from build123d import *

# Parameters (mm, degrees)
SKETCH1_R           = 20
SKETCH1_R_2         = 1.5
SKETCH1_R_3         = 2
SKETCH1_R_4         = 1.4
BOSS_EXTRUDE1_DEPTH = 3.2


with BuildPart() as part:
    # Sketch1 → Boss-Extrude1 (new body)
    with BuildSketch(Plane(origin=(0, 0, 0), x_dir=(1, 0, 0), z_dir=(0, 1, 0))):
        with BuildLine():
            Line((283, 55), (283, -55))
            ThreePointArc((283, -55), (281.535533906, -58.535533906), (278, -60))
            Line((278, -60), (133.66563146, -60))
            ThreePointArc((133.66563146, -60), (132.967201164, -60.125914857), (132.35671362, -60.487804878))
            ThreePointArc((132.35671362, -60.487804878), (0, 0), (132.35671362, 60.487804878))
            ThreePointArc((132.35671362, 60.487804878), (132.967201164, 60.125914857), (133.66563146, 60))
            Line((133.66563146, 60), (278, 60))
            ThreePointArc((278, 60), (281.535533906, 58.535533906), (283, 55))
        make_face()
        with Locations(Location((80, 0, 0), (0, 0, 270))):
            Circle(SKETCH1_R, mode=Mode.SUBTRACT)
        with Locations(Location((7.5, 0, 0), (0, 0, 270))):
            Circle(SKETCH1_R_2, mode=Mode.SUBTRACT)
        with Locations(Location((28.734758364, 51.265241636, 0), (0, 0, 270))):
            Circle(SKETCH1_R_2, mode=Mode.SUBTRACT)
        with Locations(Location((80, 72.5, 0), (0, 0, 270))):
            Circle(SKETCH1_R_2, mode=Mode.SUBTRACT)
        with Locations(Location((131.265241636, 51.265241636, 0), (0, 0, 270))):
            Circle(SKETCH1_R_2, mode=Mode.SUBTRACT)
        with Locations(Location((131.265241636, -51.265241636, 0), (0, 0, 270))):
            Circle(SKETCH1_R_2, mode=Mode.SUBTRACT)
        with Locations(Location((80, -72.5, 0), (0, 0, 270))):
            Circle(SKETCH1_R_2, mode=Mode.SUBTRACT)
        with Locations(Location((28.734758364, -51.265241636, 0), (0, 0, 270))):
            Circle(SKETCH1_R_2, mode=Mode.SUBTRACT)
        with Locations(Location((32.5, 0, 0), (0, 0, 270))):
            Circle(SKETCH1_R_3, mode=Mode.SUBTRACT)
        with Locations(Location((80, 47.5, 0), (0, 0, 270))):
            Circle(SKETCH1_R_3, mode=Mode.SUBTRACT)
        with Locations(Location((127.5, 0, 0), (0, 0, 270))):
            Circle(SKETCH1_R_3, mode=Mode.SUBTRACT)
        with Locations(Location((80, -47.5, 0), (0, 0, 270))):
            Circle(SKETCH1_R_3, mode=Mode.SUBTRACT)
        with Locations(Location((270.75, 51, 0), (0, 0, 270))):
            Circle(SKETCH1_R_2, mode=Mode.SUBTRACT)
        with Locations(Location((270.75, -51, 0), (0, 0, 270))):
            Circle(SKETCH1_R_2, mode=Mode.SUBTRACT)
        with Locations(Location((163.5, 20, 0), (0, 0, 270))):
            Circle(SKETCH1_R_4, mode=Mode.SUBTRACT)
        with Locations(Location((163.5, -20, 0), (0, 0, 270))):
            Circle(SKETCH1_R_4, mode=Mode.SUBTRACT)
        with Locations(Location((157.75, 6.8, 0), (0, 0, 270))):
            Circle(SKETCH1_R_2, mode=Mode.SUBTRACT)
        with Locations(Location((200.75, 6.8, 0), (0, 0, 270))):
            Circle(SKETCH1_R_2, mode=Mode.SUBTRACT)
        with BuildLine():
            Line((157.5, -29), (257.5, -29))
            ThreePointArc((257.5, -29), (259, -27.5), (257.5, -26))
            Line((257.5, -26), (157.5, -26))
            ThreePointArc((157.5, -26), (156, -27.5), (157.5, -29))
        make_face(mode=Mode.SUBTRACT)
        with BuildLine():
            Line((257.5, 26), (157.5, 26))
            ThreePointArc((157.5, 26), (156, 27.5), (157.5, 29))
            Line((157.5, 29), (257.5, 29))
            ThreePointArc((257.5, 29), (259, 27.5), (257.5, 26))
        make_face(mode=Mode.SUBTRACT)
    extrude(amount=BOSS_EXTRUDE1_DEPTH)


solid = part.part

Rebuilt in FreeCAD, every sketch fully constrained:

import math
import FreeCAD as App
import Part
import Sketcher

V = App.Vector
Q = App.Units.Quantity

doc = App.newDocument("Part")
body = doc.addObject("PartDesign::Body", "Body")

# Sketch on XZ plane
sketch1 = body.newObject("Sketcher::SketchObject", "Sketch")
sketch1.AttachmentSupport = (doc.getObject("XZ_Plane"), [""])
sketch1.MapMode = "FlatFace"
sketch1.addGeometry([
    Part.LineSegment(V(283, 55, 0), V(283, -55, 0)),  # 0
    Part.ArcOfCircle(Part.Circle(V(278, -55, 0), V(0, 0, 1), 5), math.radians(-90), math.radians(0)),  # 1
    Part.LineSegment(V(278, -60, 0), V(133.7, -60, 0)),  # 2
    Part.ArcOfCircle(Part.Circle(V(133.7, -62, 0), V(0, 0, 1), 2), math.radians(90), math.radians(131)),  # 3
    Part.ArcOfCircle(Part.Circle(V(80, 0, 0), V(0, 0, 1), 80), math.radians(49), math.radians(311)),  # 4
    Part.ArcOfCircle(Part.Circle(V(133.7, 62, 0), V(0, 0, 1), 2), math.radians(-131), math.radians(-90)),  # 5
    Part.LineSegment(V(133.7, 60, 0), V(278, 60, 0)),  # 6
    Part.ArcOfCircle(Part.Circle(V(278, 55, 0), V(0, 0, 1), 5), math.radians(0), math.radians(90)),  # 7
    Part.Circle(V(270.8, 51, 0), V(0, 0, 1), 1.5),  # 8
    Part.ArcOfCircle(Part.Circle(V(157.5, 27.5, 0), V(0, 0, 1), 1.5), math.radians(90), math.radians(270)),  # 9
    Part.LineSegment(V(157.5, 26, 0), V(257.5, 26, 0)),  # 10
    Part.ArcOfCircle(Part.Circle(V(257.5, 27.5, 0), V(0, 0, 1), 1.5), math.radians(-90), math.radians(90)),  # 11
    Part.LineSegment(V(257.5, 29, 0), V(157.5, 29, 0)),  # 12
    Part.Circle(V(163.5, 20, 0), V(0, 0, 1), 1.4),  # 13
    Part.Circle(V(80, 72.5, 0), V(0, 0, 1), 1.5),  # 14
    Part.Circle(V(131.3, 51.3, 0), V(0, 0, 1), 1.5),  # 15
    Part.Circle(V(80, 47.5, 0), V(0, 0, 1), 2),  # 16
    Part.Circle(V(28.7, 51.3, 0), V(0, 0, 1), 1.5),  # 17
    Part.LineSegment(V(257.5, -26, 0), V(157.5, -26, 0)),  # 18
    Part.ArcOfCircle(Part.Circle(V(157.5, -27.5, 0), V(0, 0, 1), 1.5), math.radians(90), math.radians(270)),  # 19
    Part.LineSegment(V(157.5, -29, 0), V(257.5, -29, 0)),  # 20
    Part.ArcOfCircle(Part.Circle(V(257.5, -27.5, 0), V(0, 0, 1), 1.5), math.radians(-90), math.radians(90)),  # 21
    Part.Circle(V(200.8, -6.8, 0), V(0, 0, 1), 1.5),  # 22
    Part.Circle(V(157.8, -6.8, 0), V(0, 0, 1), 1.5),  # 23
    Part.Circle(V(163.5, -20, 0), V(0, 0, 1), 1.4),  # 24
    Part.Circle(V(270.8, -51, 0), V(0, 0, 1), 1.5),  # 25
    Part.Circle(V(127.5, 0, 0), V(0, 0, 1), 2),  # 26
    Part.Circle(V(80, 0, 0), V(0, 0, 1), 20),  # 27
    Part.Circle(V(32.5, 0, 0), V(0, 0, 1), 2),  # 28
    Part.Circle(V(7.5, 0, 0), V(0, 0, 1), 1.5),  # 29
    Part.Circle(V(131.3, -51.3, 0), V(0, 0, 1), 1.5),  # 30
    Part.Circle(V(80, -47.5, 0), V(0, 0, 1), 2),  # 31
    Part.Circle(V(80, -72.5, 0), V(0, 0, 1), 1.5),  # 32
    Part.Circle(V(28.7, -51.3, 0), V(0, 0, 1), 1.5),  # 33
], False)
sketch1.addConstraint([
    Sketcher.Constraint("Tangent", 0, 2, 1, 2),
    Sketcher.Constraint("Tangent", 1, 1, 2, 1),
    Sketcher.Constraint("Tangent", 2, 2, 3, 1),
    Sketcher.Constraint("Tangent", 3, 2, 4, 2),
    Sketcher.Constraint("Tangent", 4, 1, 5, 1),
    Sketcher.Constraint("Tangent", 5, 2, 6, 1),
    Sketcher.Constraint("Tangent", 6, 2, 7, 2),
    Sketcher.Constraint("Tangent", 7, 1, 0, 1),
    Sketcher.Constraint("Tangent", 9, 2, 10, 1),
    Sketcher.Constraint("Tangent", 10, 2, 11, 1),
    Sketcher.Constraint("Tangent", 11, 2, 12, 1),
    Sketcher.Constraint("Tangent", 12, 2, 9, 1),
    Sketcher.Constraint("Tangent", 18, 2, 19, 1),
    Sketcher.Constraint("Tangent", 19, 2, 20, 1),
    Sketcher.Constraint("Tangent", 20, 2, 21, 1),
    Sketcher.Constraint("Tangent", 21, 2, 18, 1),
    Sketcher.Constraint("Vertical", 0),
    Sketcher.Constraint("Horizontal", 2),
    Sketcher.Constraint("Horizontal", 6),
    Sketcher.Constraint("Horizontal", 10),
    Sketcher.Constraint("Horizontal", 12),
    Sketcher.Constraint("Horizontal", 18),
    Sketcher.Constraint("Horizontal", 20),
    Sketcher.Constraint("Coincident", 27, 3, 4, 3),
    Sketcher.Constraint("Equal", 3, 5),
    Sketcher.Constraint("Equal", 1, 7),
    Sketcher.Constraint("Equal", 8, 9),
    Sketcher.Constraint("Equal", 11, 14),
    Sketcher.Constraint("Equal", 14, 15),
    Sketcher.Constraint("Equal", 5, 16),
    Sketcher.Constraint("Equal", 15, 17),
    Sketcher.Constraint("Equal", 17, 19),
    Sketcher.Constraint("Equal", 21, 22),
    Sketcher.Constraint("Equal", 22, 23),
    Sketcher.Constraint("Equal", 13, 24),
    Sketcher.Constraint("Equal", 23, 25),
    Sketcher.Constraint("Equal", 16, 26),
    Sketcher.Constraint("Equal", 26, 28),
    Sketcher.Constraint("Equal", 25, 29),
    Sketcher.Constraint("Equal", 29, 30),
    Sketcher.Constraint("Equal", 28, 31),
    Sketcher.Constraint("Equal", 30, 32),
    Sketcher.Constraint("Equal", 32, 33),
    Sketcher.Constraint("Symmetric", 3, 3, 5, 3, -1),
    Sketcher.Constraint("Symmetric", 9, 3, 19, 3, -1),
    Sketcher.Constraint("Symmetric", 13, 3, 24, 3, -1),
    Sketcher.Constraint("Symmetric", 8, 3, 25, 3, -1),
    Sketcher.Constraint("Symmetric", 15, 3, 30, 3, -1),
    Sketcher.Constraint("Symmetric", 16, 3, 31, 3, -1),
    Sketcher.Constraint("Symmetric", 14, 3, 32, 3, -1),
    Sketcher.Constraint("Symmetric", 17, 3, 33, 3, -1),
    Sketcher.Constraint("PointOnObject", 26, 3, -1),
    Sketcher.Constraint("PointOnObject", 28, 3, -1),
    Sketcher.Constraint("PointOnObject", 29, 3, -1),
    Sketcher.Constraint("Horizontal", 15, 3, 17, 3),
    Sketcher.Constraint("Horizontal", 22, 3, 23, 3),
    Sketcher.Constraint("Vertical", 4, 3, 14, 3),
    Sketcher.Constraint("Vertical", 14, 3, 16, 3),
    Sketcher.Constraint("Vertical", 11, 3, 21, 3),
    Sketcher.Constraint("Diameter", 8, Q("3 mm")),
    Sketcher.Constraint("Diameter", 16, Q("4 mm")),
    Sketcher.Constraint("Diameter", 27, Q("40 mm")),
    Sketcher.Constraint("Radius", 1, Q("5 mm")),
    Sketcher.Constraint("Radius", 4, Q("80 mm")),
    Sketcher.Constraint("Diameter", 13, Q("2.8 mm")),
    Sketcher.Constraint("DistanceX", 10, 1, 10, 2, Q("100 mm")),
    Sketcher.Constraint("DistanceY", 0, 2, 0, 1, Q("110 mm")),
    Sketcher.Constraint("DistanceX", -1, 1, 1, 3, Q("278 mm")),
    Sketcher.Constraint("DistanceX", -1, 1, 4, 3, Q("80 mm")),
    Sketcher.Constraint("DistanceY", -1, 1, 8, 3, Q("51 mm")),
    Sketcher.Constraint("DistanceY", -1, 1, 13, 3, Q("20 mm")),
    Sketcher.Constraint("DistanceY", -1, 1, 9, 2, Q("26 mm")),
    Sketcher.Constraint("DistanceX", 9, 3, 13, 3, Q("6 mm")),
    Sketcher.Constraint("DistanceY", 9, 3, 14, 3, Q("45 mm")),
    Sketcher.Constraint("DistanceY", 16, 3, 14, 3, Q("25 mm")),
    Sketcher.Constraint("DistanceX", 23, 3, 22, 3, Q("43 mm")),
    Sketcher.Constraint("DistanceX", 22, 3, 25, 3, Q("70 mm")),
    Sketcher.Constraint("DistanceX", 26, 3, 9, 3, Q("30 mm")),
    Sketcher.Constraint("DistanceX", 29, 3, 28, 3, Q("25 mm")),
    Sketcher.Constraint("DistanceX", -1, 1, 9, 3, Q("157.5 mm")),
    Sketcher.Constraint("DistanceY", 22, 3, -1, 1, Q("6.8 mm")),
    Sketcher.Constraint("DistanceX", -1, 1, 28, 3, Q("32.5 mm")),
    Sketcher.Constraint("DistanceX", -1, 1, 8, 3, Q("270.75 mm")),
    Sketcher.Constraint("DistanceX", -1, 1, 15, 3, Q("131.265242 mm")),
    Sketcher.Constraint("DistanceY", -1, 1, 15, 3, Q("51.265242 mm")),
    Sketcher.Constraint("DistanceX", -1, 1, 17, 3, Q("28.734758 mm")),
])
pad1 = body.newObject("PartDesign::Pad", "Pad")
pad1.Profile = sketch1
pad1.Length = 3.2
pad1.Reversed = True

doc.recompute()
